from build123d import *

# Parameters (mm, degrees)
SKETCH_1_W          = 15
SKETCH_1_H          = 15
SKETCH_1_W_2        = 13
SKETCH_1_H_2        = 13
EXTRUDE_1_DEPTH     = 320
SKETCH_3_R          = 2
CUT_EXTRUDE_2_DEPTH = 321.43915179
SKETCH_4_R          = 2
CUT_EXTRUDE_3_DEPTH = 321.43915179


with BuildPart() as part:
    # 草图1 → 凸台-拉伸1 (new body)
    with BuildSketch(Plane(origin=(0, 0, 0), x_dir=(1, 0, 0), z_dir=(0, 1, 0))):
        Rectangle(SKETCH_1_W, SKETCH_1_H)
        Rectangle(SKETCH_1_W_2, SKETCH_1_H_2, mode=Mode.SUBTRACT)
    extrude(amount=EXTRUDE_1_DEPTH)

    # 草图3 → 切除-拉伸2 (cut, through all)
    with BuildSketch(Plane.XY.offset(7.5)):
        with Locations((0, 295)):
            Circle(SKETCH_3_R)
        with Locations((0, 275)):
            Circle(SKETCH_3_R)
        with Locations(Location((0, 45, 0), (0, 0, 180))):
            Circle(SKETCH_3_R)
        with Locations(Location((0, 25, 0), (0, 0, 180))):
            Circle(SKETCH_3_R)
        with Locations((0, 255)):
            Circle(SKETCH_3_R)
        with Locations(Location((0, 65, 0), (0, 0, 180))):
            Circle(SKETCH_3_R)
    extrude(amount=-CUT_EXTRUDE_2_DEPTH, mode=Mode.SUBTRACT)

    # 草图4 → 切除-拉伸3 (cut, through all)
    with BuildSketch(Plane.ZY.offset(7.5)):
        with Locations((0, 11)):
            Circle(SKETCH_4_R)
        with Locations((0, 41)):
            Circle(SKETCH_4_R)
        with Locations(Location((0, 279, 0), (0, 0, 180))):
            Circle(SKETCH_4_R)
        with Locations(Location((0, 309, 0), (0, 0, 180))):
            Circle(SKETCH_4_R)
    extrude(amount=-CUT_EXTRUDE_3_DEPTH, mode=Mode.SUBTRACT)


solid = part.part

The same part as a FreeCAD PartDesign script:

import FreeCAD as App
import Part
import Sketcher

V = App.Vector

doc = App.newDocument("Part")
body = doc.addObject("PartDesign::Body", "Body")

sketch1 = doc.addObject("Sketcher::SketchObject", "Sketch")
body.addObject(sketch1)
sketch1.AttachmentSupport = (doc.XZ_Plane, [""])
sketch1.MapMode = "FlatFace"
sketch1.addGeometry([
    Part.LineSegment(V(-8, -8, 0), V(-8, 8, 0)),
    Part.LineSegment(V(-8, 8, 0), V(8, 8, 0)),
    Part.LineSegment(V(8, 8, 0), V(8, -8, 0)),
    Part.LineSegment(V(8, -8, 0), V(-8, -8, 0)),
    Part.LineSegment(V(6, 6, 0), V(-6, 6, 0)),
    Part.LineSegment(V(-6, 6, 0), V(-6, -6, 0)),
    Part.LineSegment(V(-6, -6, 0), V(6, -6, 0)),
    Part.LineSegment(V(6, -6, 0), V(6, 6, 0)),
], False)
sketch1.addConstraint([
    Sketcher.Constraint("Coincident", 0, 2, 1, 1),
    Sketcher.Constraint("Coincident", 1, 2, 2, 1),
    Sketcher.Constraint("Coincident", 2, 2, 3, 1),
    Sketcher.Constraint("Coincident", 3, 2, 0, 1),
    Sketcher.Constraint("Coincident", 4, 2, 5, 1),
    Sketcher.Constraint("Coincident", 5, 2, 6, 1),
    Sketcher.Constraint("Coincident", 6, 2, 7, 1),
    Sketcher.Constraint("Coincident", 7, 2, 4, 1),
    Sketcher.Constraint("Vertical", 0),
    Sketcher.Constraint("Horizontal", 1),
    Sketcher.Constraint("Vertical", 2),
    Sketcher.Constraint("Horizontal", 3),
    Sketcher.Constraint("Horizontal", 4),
    Sketcher.Constraint("Vertical", 5),
    Sketcher.Constraint("Horizontal", 6),
    Sketcher.Constraint("Vertical", 7),
    Sketcher.Constraint("Symmetric", 0, 2, 2, 2, -1, 1),
    Sketcher.Constraint("Symmetric", 4, 2, 6, 2, -1, 1),
    Sketcher.Constraint("Equal", 3, 0),
    Sketcher.Constraint("Equal", 6, 5),
    Sketcher.Constraint("DistanceX", 1, 1, 1, 2, 15.0),
    Sketcher.Constraint("DistanceX", 4, 2, 4, 1, 13.0),
])
pad1 = doc.addObject("PartDesign::Pad", "Pad")
body.addObject(pad1)
pad1.Profile = sketch1
pad1.Length = 320
pad1.Reversed = True

sketch2 = doc.addObject("Sketcher::SketchObject", "Sketch001")
body.addObject(sketch2)
sketch2.AttachmentSupport = (doc.XY_Plane, [""])
sketch2.MapMode = "FlatFace"
sketch2.AttachmentOffset = App.Placement(V(0, 0, 7.5), App.Rotation())
sketch2.addGeometry([
    Part.Circle(V(0, 295, 0), V(0, 0, 1), 2),
    Part.Circle(V(0, 275, 0), V(0, 0, 1), 2),
    Part.Circle(V(0, 45, 0), V(0, 0, 1), 2),
    Part.Circle(V(0, 25, 0), V(0, 0, 1), 2),
    Part.Circle(V(0, 255, 0), V(0, 0, 1), 2),
    Part.Circle(V(0, 65, 0), V(0, 0, 1), 2),
], False)
sketch2.addConstraint([
    Sketcher.Constraint("Equal", 0, 1),
    Sketcher.Constraint("Equal", 1, 2),
    Sketcher.Constraint("Equal", 2, 3),
    Sketcher.Constraint("Equal", 3, 4),
    Sketcher.Constraint("Equal", 4, 5),
    Sketcher.Constraint("PointOnObject", 0, 3, -2),
    Sketcher.Constraint("PointOnObject", 1, 3, -2),
    Sketcher.Constraint("PointOnObject", 2, 3, -2),
    Sketcher.Constraint("PointOnObject", 3, 3, -2),
    Sketcher.Constraint("PointOnObject", 4, 3, -2),
    Sketcher.Constraint("PointOnObject", 5, 3, -2),
    Sketcher.Constraint("Diameter", 0, 4.0),
    Sketcher.Constraint("DistanceY", -1, 1, 0, 3, 295.0),
    Sketcher.Constraint("DistanceY", -1, 1, 1, 3, 275.0),
    Sketcher.Constraint("DistanceY", -1, 1, 2, 3, 45.0),
    Sketcher.Constraint("DistanceY", -1, 1, 3, 3, 25.0),
    Sketcher.Constraint("DistanceY", -1, 1, 4, 3, 255.0),
    Sketcher.Constraint("DistanceY", -1, 1, 5, 3, 65.0),
])
pocket1 = doc.addObject("PartDesign::Pocket", "Pocket")
body.addObject(pocket1)
pocket1.Profile = sketch2
pocket1.Type = "ThroughAll"

sketch3 = doc.addObject("Sketcher::SketchObject", "Sketch002")
body.addObject(sketch3)
sketch3.AttachmentSupport = (doc.YZ_Plane, [""])
sketch3.MapMode = "FlatFace"
sketch3.AttachmentOffset = App.Placement(V(0, 0, -7.5), App.Rotation())
sketch3.addGeometry([
    Part.Circle(V(11, 0, 0), V(0, 0, 1), 2),
    Part.Circle(V(41, 0, 0), V(0, 0, 1), 2),
    Part.Circle(V(279, 0, 0), V(0, 0, 1), 2),
    Part.Circle(V(309, 0, 0), V(0, 0, 1), 2),
], False)
sketch3.addConstraint([
    Sketcher.Constraint("Equal", 0, 1),
    Sketcher.Constraint("Equal", 1, 2),
    Sketcher.Constraint("Equal", 2, 3),
    Sketcher.Constraint("PointOnObject", 0, 3, -1),
    Sketcher.Constraint("PointOnObject", 1, 3, -1),
    Sketcher.Constraint("PointOnObject", 2, 3, -1),
    Sketcher.Constraint("PointOnObject", 3, 3, -1),
    Sketcher.Constraint("Diameter", 0, 4.0),
    Sketcher.Constraint("DistanceX", -1, 1, 0, 3, 11.0),
    Sketcher.Constraint("DistanceX", -1, 1, 1, 3, 41.0),
    Sketcher.Constraint("DistanceX", -1, 1, 2, 3, 279.0),
    Sketcher.Constraint("DistanceX", -1, 1, 3, 3, 309.0),
])
pocket2 = doc.addObject("PartDesign::Pocket", "Pocket001")
body.addObject(pocket2)
pocket2.Profile = sketch3
pocket2.Type = "ThroughAll"
pocket2.Reversed = True

doc.recompute()
